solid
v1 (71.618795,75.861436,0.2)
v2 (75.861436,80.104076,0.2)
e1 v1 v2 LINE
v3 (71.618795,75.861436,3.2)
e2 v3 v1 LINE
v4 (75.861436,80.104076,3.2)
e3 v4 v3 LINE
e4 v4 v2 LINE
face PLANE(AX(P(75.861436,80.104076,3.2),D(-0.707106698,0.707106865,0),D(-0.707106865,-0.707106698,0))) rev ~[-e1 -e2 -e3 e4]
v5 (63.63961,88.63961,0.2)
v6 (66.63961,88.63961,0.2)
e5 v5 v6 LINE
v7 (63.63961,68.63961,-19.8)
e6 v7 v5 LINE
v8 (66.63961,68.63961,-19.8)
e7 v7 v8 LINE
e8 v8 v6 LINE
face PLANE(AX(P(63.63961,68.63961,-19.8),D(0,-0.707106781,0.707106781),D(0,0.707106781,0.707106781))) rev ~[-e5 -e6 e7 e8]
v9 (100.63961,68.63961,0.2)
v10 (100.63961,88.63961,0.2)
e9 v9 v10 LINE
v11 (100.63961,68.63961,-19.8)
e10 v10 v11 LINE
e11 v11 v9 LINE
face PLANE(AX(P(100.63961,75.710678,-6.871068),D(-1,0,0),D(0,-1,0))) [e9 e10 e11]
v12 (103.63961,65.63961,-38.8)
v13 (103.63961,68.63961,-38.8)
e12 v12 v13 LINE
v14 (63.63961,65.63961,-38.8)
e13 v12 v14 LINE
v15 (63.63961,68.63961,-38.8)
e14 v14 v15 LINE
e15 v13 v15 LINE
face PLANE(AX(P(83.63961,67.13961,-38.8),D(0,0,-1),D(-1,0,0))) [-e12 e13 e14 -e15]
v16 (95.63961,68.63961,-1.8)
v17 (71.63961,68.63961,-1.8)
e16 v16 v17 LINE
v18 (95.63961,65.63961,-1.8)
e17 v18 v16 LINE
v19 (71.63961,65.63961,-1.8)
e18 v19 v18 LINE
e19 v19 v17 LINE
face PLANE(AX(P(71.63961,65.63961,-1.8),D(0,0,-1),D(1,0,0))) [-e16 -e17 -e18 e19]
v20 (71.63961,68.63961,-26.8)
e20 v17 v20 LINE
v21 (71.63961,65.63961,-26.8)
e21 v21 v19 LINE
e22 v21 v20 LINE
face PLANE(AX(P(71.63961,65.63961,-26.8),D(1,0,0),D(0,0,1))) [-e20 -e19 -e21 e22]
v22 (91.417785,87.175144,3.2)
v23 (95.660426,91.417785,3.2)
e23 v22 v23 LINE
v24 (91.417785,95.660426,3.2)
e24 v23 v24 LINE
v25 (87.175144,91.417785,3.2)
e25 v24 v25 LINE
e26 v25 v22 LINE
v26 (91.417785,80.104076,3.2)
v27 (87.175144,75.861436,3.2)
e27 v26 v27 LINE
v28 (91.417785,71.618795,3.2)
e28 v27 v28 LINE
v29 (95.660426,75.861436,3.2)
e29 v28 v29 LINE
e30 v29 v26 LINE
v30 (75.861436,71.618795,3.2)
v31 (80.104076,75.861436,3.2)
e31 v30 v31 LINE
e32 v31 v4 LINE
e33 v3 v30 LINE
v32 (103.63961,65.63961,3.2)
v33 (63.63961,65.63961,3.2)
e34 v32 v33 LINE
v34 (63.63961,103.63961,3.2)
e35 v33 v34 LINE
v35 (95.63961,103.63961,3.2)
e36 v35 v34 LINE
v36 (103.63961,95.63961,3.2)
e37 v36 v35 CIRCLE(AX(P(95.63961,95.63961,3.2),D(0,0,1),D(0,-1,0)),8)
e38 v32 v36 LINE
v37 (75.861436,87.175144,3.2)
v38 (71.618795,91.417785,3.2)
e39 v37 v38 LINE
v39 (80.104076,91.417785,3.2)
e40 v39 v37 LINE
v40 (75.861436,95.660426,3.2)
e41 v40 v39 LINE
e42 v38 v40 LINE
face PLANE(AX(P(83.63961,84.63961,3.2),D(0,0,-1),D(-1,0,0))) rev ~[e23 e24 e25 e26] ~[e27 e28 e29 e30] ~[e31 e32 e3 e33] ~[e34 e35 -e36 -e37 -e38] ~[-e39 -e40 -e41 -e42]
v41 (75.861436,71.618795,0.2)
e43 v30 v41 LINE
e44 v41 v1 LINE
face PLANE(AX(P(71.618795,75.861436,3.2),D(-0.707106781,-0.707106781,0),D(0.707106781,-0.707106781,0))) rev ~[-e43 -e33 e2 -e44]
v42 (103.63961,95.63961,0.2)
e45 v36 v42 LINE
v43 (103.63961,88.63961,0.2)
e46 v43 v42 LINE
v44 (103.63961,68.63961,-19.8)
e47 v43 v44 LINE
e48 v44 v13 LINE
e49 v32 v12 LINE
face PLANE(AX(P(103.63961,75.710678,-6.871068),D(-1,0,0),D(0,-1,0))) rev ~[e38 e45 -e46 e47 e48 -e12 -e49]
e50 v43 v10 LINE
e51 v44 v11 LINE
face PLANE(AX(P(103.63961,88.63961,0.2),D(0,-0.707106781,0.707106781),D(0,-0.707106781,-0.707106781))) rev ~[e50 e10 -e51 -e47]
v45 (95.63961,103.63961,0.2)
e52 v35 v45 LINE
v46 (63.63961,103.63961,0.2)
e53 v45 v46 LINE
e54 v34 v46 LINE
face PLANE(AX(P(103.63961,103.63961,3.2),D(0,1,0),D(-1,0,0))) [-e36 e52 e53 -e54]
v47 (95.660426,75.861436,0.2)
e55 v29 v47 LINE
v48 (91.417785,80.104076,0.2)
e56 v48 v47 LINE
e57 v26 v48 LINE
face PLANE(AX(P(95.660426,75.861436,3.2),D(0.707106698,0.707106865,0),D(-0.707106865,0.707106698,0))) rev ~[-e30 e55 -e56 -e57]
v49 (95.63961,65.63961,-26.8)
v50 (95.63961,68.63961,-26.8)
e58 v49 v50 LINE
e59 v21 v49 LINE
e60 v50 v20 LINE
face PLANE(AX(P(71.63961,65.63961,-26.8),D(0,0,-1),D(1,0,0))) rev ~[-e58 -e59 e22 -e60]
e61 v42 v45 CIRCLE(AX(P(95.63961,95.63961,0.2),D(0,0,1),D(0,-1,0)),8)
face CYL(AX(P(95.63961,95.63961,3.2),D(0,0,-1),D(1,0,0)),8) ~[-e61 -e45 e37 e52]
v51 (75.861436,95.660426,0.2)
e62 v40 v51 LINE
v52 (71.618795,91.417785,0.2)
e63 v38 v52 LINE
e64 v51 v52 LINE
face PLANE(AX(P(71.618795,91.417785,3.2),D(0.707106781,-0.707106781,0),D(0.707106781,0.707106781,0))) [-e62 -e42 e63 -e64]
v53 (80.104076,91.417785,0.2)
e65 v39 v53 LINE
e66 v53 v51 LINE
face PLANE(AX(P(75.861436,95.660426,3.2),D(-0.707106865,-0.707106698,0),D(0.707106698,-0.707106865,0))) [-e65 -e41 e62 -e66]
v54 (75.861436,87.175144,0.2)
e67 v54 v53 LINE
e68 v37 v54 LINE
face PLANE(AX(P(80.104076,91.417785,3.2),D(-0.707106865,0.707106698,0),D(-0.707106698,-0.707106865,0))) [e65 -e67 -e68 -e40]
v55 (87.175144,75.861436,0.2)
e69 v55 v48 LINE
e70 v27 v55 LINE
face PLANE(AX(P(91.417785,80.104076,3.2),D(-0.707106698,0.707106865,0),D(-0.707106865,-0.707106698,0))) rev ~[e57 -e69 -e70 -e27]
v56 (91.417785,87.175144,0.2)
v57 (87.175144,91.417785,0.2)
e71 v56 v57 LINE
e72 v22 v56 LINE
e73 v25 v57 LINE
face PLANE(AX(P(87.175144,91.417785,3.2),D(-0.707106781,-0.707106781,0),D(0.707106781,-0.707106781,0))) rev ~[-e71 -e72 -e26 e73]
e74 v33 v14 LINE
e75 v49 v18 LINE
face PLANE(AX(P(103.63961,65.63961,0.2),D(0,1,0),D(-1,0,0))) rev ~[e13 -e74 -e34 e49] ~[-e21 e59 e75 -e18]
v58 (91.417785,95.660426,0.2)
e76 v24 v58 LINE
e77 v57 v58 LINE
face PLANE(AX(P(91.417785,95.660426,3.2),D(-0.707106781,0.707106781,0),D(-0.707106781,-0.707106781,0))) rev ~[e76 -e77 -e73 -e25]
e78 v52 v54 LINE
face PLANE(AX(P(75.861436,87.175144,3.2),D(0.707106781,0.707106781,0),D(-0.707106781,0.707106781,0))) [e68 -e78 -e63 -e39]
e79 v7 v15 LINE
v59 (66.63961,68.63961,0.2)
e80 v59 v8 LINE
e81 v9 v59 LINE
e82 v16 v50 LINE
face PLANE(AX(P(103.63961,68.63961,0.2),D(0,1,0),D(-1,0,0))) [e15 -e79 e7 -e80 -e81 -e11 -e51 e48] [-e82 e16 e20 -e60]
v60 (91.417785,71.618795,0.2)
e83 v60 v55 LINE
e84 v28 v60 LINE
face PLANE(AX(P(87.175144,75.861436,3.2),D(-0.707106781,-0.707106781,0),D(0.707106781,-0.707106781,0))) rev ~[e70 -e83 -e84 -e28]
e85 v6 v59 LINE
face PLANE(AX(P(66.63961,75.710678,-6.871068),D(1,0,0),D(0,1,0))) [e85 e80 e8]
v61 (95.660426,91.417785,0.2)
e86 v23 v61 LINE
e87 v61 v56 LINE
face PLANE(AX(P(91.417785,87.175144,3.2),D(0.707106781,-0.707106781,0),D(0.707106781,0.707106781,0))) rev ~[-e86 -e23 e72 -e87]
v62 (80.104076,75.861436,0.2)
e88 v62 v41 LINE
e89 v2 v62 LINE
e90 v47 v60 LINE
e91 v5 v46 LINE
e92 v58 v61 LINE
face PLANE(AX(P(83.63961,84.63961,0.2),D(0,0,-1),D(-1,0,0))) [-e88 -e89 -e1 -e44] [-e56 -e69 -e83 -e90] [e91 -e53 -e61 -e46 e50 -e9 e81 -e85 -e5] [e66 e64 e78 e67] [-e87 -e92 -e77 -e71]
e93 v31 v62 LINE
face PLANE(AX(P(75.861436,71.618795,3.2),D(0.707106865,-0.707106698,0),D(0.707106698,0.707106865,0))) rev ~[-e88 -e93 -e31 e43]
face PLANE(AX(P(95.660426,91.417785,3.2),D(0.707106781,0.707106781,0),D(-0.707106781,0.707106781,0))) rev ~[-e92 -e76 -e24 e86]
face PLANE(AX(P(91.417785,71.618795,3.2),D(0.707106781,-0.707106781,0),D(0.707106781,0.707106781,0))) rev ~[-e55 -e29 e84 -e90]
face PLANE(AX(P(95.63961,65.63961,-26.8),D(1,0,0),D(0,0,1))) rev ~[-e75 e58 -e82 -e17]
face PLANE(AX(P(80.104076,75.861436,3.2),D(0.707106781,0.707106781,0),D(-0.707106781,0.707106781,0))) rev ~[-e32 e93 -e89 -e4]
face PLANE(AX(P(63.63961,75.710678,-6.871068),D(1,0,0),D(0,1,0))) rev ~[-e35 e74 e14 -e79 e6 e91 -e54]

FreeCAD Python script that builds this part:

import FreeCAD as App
import Part
import Sketcher
from FreeCAD import Vector
Q = App.Units.Quantity


def edges_at(feature, points):
    """Names of the edges that pass closest to the given points."""
    edges = feature.Shape.Edges
    near = lambda p: min(range(len(edges)), key=lambda i: edges[i].distToShape(Part.Vertex(*p))[0])
    return sorted({f"Edge{near(p) + 1}" for p in points})

doc = App.newDocument("Part")
params = doc.addObject("Spreadsheet::Sheet", "Params")
for row, (alias, value) in enumerate([
    ("sketch1_width", "40 mm"),
    ("sketch1_height", "38 mm"),
    ("pad1_length", "3 mm"),
    ("sketch2_width", "40 mm"),
    ("sketch2_height", "3 mm"),
    ("pad2_length", "39 mm"),
    ("sketch3_diameter", "3 mm"),
    ("sketch3_width", "24 mm"),
    ("sketch3_height", "25 mm"),
    ("pocket1_length", "5 mm"),
    ("sketch4_length", "6 mm"),
    ("pocket2_length", "5 mm"),
    ("sketch5_width", "20 mm"),
    ("pad3_length", "3 mm"),
    ("sketch6_width", "20 mm"),
    ("pad4_length", "3 mm"),
    ("fillet_radius", "8 mm"),
], start=1):
    params.set(f"A{row}", alias)
    params.set(f"B{row}", "=" + value)
    params.setAlias(f"B{row}", alias)

body = doc.addObject("PartDesign::Body", "Body")

sketch1 = body.newObject("Sketcher::SketchObject", "Sketch")
sketch1.AttachmentSupport = (doc.getObject("XY_Plane"), [""])
sketch1.MapMode = "FlatFace"
sketch1.AttachmentOffset = App.Placement(Vector(0, 0, 3.2), App.Rotation())
sketch1.addGeometry([
    Part.LineSegment(Vector(-103.63961, -103.63961, 0), Vector(-103.63961, -65.63961, 0)),
    Part.LineSegment(Vector(-103.63961, -65.63961, 0), Vector(-63.63961, -65.63961, 0)),
    Part.LineSegment(Vector(-63.63961, -65.63961, 0), Vector(-63.63961, -103.63961, 0)),
    Part.LineSegment(Vector(-63.63961, -103.63961, 0), Vector(-103.63961, -103.63961, 0)),
], False)
sketch1.addConstraint([
    Sketcher.Constraint("Coincident", 0, 2, 1, 1),
    Sketcher.Constraint("Coincident", 1, 2, 2, 1),
    Sketcher.Constraint("Coincident", 2, 2, 3, 1),
    Sketcher.Constraint("Coincident", 3, 2, 0, 1),
    Sketcher.Constraint("Vertical", 0),
    Sketcher.Constraint("Horizontal", 1),
    Sketcher.Constraint("Vertical", 2),
    Sketcher.Constraint("Horizontal", 3),
    Sketcher.Constraint("DistanceX", 1, 1, 1, 2, Q("40 mm")),
    Sketcher.Constraint("DistanceY", 0, 1, 0, 2, Q("38 mm")),
    Sketcher.Constraint("DistanceX", 0, 2, -1, 1, Q("103.63961 mm")),
    Sketcher.Constraint("DistanceY", 0, 2, -1, 1, Q("65.63961 mm")),
])
sketch1.setExpression("Constraints[8]", "Params.sketch1_width")
sketch1.setExpression("Constraints[9]", "Params.sketch1_height")
pad1 = body.newObject("PartDesign::Pad", "Pad")
pad1.Profile = sketch1
pad1.setExpression("Length", "Params.pad1_length")
pad1.Reversed = True

sketch2 = body.newObject("Sketcher::SketchObject", "Sketch001")
sketch2.AttachmentSupport = (doc.getObject("XY_Plane"), [""])
sketch2.MapMode = "FlatFace"
sketch2.AttachmentOffset = App.Placement(Vector(0, 0, 0.2), App.Rotation())
sketch2.addGeometry([
    Part.LineSegment(Vector(-103.63961, -68.63961, 0), Vector(-103.63961, -65.63961, 0)),
    Part.LineSegment(Vector(-103.63961, -65.63961, 0), Vector(-63.63961, -65.63961, 0)),
    Part.LineSegment(Vector(-63.63961, -65.63961, 0), Vector(-63.63961, -68.63961, 0)),
    Part.LineSegment(Vector(-63.63961, -68.63961, 0), Vector(-103.63961, -68.63961, 0)),
], False)
sketch2.addConstraint([
    Sketcher.Constraint("Coincident", 0, 2, 1, 1),
    Sketcher.Constraint("Coincident", 1, 2, 2, 1),
    Sketcher.Constraint("Coincident", 2, 2, 3, 1),
    Sketcher.Constraint("Coincident", 3, 2, 0, 1),
    Sketcher.Constraint("Vertical", 0),
    Sketcher.Constraint("Horizontal", 1),
    Sketcher.Constraint("Vertical", 2),
    Sketcher.Constraint("Horizontal", 3),
    Sketcher.Constraint("DistanceX", 1, 1, 1, 2, Q("40 mm")),
    Sketcher.Constraint("DistanceY", 0, 1, 0, 2, Q("3 mm")),
    Sketcher.Constraint("DistanceX", 0, 2, -1, 1, Q("103.63961 mm")),
    Sketcher.Constraint("DistanceY", 0, 2, -1, 1, Q("65.63961 mm")),
])
sketch2.setExpression("Constraints[8]", "Params.sketch2_width")
sketch2.setExpression("Constraints[9]", "Params.sketch2_height")
pad2 = body.newObject("PartDesign::Pad", "Pad001")
pad2.Profile = sketch2
pad2.setExpression("Length", "Params.pad2_length")
pad2.Reversed = True

sketch3 = body.newObject("Sketcher::SketchObject", "Sketch002")
sketch3.AttachmentSupport = (doc.getObject("XZ_Plane"), [""])
sketch3.MapMode = "FlatFace"
sketch3.AttachmentOffset = App.Placement(Vector(0, 0, 65.63961), App.Rotation())
sketch3.addGeometry([
    Part.Circle(Vector(92.512799, -33.212713, 0), Vector(0, 0, 1), 1.5),
    Part.Circle(Vector(73.103896, -33.2, 0), Vector(0, 0, 1), 1.5),
    Part.LineSegment(Vector(-71.63961, -1.8, 0), Vector(-71.63961, -26.8, 0)),
    Part.LineSegment(Vector(-71.63961, -26.8, 0), Vector(-95.63961, -26.8, 0)),
    Part.LineSegment(Vector(-95.63961, -26.8, 0), Vector(-95.63961, -1.8, 0)),
    Part.LineSegment(Vector(-95.63961, -1.8, 0), Vector(-71.63961, -1.8, 0)),
], False)
sketch3.addConstraint([
    Sketcher.Constraint("Coincident", 2, 2, 3, 1),
    Sketcher.Constraint("Coincident", 3, 2, 4, 1),
    Sketcher.Constraint("Coincident", 4, 2, 5, 1),
    Sketcher.Constraint("Coincident", 5, 2, 2, 1),
    Sketcher.Constraint("Vertical", 2),
    Sketcher.Constraint("Horizontal", 3),
    Sketcher.Constraint("Vertical", 4),
    Sketcher.Constraint("Horizontal", 5),
    Sketcher.Constraint("Equal", 0, 1),
    Sketcher.Constraint("Diameter", 0, Q("3 mm")),
    Sketcher.Constraint("DistanceX", 3, 2, 3, 1, Q("24 mm")),
    Sketcher.Constraint("DistanceY", 2, 2, 2, 1, Q("25 mm")),
    Sketcher.Constraint("DistanceY", 1, 3, -1, 1, Q("33.2 mm")),
    Sketcher.Constraint("DistanceY", 2, 2, -1, 1, Q("26.8 mm")),
    Sketcher.Constraint("DistanceX", -1, 1, 0, 3, Q("92.512799 mm")),
    Sketcher.Constraint("DistanceX", 2, 2, -1, 1, Q("71.63961 mm")),
    Sketcher.Constraint("DistanceY", 0, 3, -1, 1, Q("33.212713 mm")),
    Sketcher.Constraint("DistanceX", -1, 1, 1, 3, Q("73.103896 mm")),
])
sketch3.setExpression("Constraints[9]", "Params.sketch3_diameter")
sketch3.setExpression("Constraints[10]", "Params.sketch3_width")
sketch3.setExpression("Constraints[11]", "Params.sketch3_height")
pocket1 = body.newObject("PartDesign::Pocket", "Pocket")
pocket1.Profile = sketch3
pocket1.setExpression("Length", "Params.pocket1_length")
pocket1.Reversed = True

sketch4 = body.newObject("Sketcher::SketchObject", "Sketch003")
sketch4.AttachmentSupport = (doc.getObject("XY_Plane"), [""])
sketch4.MapMode = "FlatFace"
sketch4.AttachmentOffset = App.Placement(Vector(0, 0, 3.2), App.Rotation())
sketch4.addGeometry([
    Part.LineSegment(Vector(-91.417785, -87.175144, 0), Vector(-95.660426, -91.417785, 0)),
    Part.LineSegment(Vector(-95.660426, -91.417785, 0), Vector(-91.417785, -95.660426, 0)),
    Part.LineSegment(Vector(-91.417785, -95.660426, 0), Vector(-87.175144, -91.417785, 0)),
    Part.LineSegment(Vector(-87.175144, -91.417785, 0), Vector(-91.417785, -87.175144, 0)),
    Part.LineSegment(Vector(-75.861436, -87.175144, 0), Vector(-80.104076, -91.417785, 0)),
    Part.LineSegment(Vector(-80.104076, -91.417785, 0), Vector(-75.861436, -95.660426, 0)),
    Part.LineSegment(Vector(-75.861436, -95.660426, 0), Vector(-71.618795, -91.417785, 0)),
    Part.LineSegment(Vector(-71.618795, -91.417785, 0), Vector(-75.861436, -87.175144, 0)),
    Part.LineSegment(Vector(-91.417785, -80.104076, 0), Vector(-87.175144, -75.861436, 0)),
    Part.LineSegment(Vector(-87.175144, -75.861436, 0), Vector(-91.417785, -71.618795, 0)),
    Part.LineSegment(Vector(-91.417785, -71.618795, 0), Vector(-95.660426, -75.861436, 0)),
    Part.LineSegment(Vector(-95.660426, -75.861436, 0), Vector(-91.417785, -80.104076, 0)),
    Part.LineSegment(Vector(-80.104076, -75.861436, 0), Vector(-75.861436, -80.104076, 0)),
    Part.LineSegment(Vector(-75.861436, -80.104076, 0), Vector(-71.618795, -75.861436, 0)),
    Part.LineSegment(Vector(-71.618795, -75.861436, 0), Vector(-75.861436, -71.618795, 0)),
    Part.LineSegment(Vector(-75.861436, -71.618795, 0), Vector(-80.104076, -75.861436, 0)),
], False)
sketch4.addConstraint([
    Sketcher.Constraint("Coincident", 0, 2, 1, 1),
    Sketcher.Constraint("Coincident", 1, 2, 2, 1),
    Sketcher.Constraint("Coincident", 2, 2, 3, 1),
    Sketcher.Constraint("Coincident", 3, 2, 0, 1),
    Sketcher.Constraint("Coincident", 4, 2, 5, 1),
    Sketcher.Constraint("Coincident", 5, 2, 6, 1),
    Sketcher.Constraint("Coincident", 6, 2, 7, 1),
    Sketcher.Constraint("Coincident", 7, 2, 4, 1),
    Sketcher.Constraint("Coincident", 8, 2, 9, 1),
    Sketcher.Constraint("Coincident", 9, 2, 10, 1),
    Sketcher.Constraint("Coincident", 10, 2, 11, 1),
    Sketcher.Constraint("Coincident", 11, 2, 8, 1),
    Sketcher.Constraint("Coincident", 12, 2, 13, 1),
    Sketcher.Constraint("Coincident", 13, 2, 14, 1),
    Sketcher.Constraint("Coincident", 14, 2, 15, 1),
    Sketcher.Constraint("Coincident", 15, 2, 12, 1),
    Sketcher.Constraint("Perpendicular", 0, 1),
    Sketcher.Constraint("Perpendicular", 1, 2),
    Sketcher.Constraint("Perpendicular", 2, 3),
    Sketcher.Constraint("Perpendicular", 3, 4),
    Sketcher.Constraint("Perpendicular", 4, 5),
    Sketcher.Constraint("Perpendicular", 5, 6),
    Sketcher.Constraint("Perpendicular", 6, 7),
    Sketcher.Constraint("Perpendicular", 7, 8),
    Sketcher.Constraint("Perpendicular", 8, 9),
    Sketcher.Constraint("Perpendicular", 9, 10),
    Sketcher.Constraint("Perpendicular", 10, 11),
    Sketcher.Constraint("Parallel", 11, 12),
    Sketcher.Constraint("Perpendicular", 12, 13),
    Sketcher.Constraint("Perpendicular", 13, 14),
    Sketcher.Constraint("Perpendicular", 14, 15),
    Sketcher.Constraint("Horizontal", 0, 2, 2, 2),
    Sketcher.Constraint("Horizontal", 2, 2, 4, 2),
    Sketcher.Constraint("Horizontal", 1, 2, 5, 2),
    Sketcher.Constraint("Horizontal", 4, 2, 6, 2),
    Sketcher.Constraint("Horizontal", 8, 2, 10, 2),
    Sketcher.Constraint("Horizontal", 11, 2, 12, 2),
    Sketcher.Constraint("Horizontal", 10, 2, 13, 2),
    Sketcher.Constraint("Horizontal", 9, 2, 14, 2),
    Sketcher.Constraint("Vertical", 1, 2, 3, 2),
    Sketcher.Constraint("Vertical", 2, 2, 8, 2),
    Sketcher.Constraint("Vertical", 3, 2, 9, 2),
    Sketcher.Constraint("Vertical", 7, 2, 12, 2),
    Sketcher.Constraint("Distance", 0, Q("6 mm")),
    Sketcher.Constraint("DistanceX", 3, 2, 4, 2, Q("11.313709 mm")),
    Sketcher.Constraint("DistanceY", 3, 2, 8, 2, Q("11.313708 mm")),
    Sketcher.Constraint("DistanceX", 0, 2, -1, 1, Q("95.660426 mm")),
    Sketcher.Constraint("DistanceY", 0, 2, -1, 1, Q("91.417785 mm")),
])
sketch4.setExpression("Constraints[43]", "Params.sketch4_length")
pocket2 = body.newObject("PartDesign::Pocket", "Pocket001")
pocket2.Profile = sketch4
pocket2.setExpression("Length", "Params.pocket2_length")

sketch5 = body.newObject("Sketcher::SketchObject", "Sketch004")
sketch5.AttachmentSupport = (doc.getObject("YZ_Plane"), [""])
sketch5.MapMode = "FlatFace"
sketch5.AttachmentOffset = App.Placement(Vector(0, 0, -103.63961), App.Rotation())
sketch5.addGeometry([
    Part.LineSegment(Vector(-68.63961, -19.8, 0), Vector(-88.63961, 0.2, 0)),
    Part.LineSegment(Vector(-88.63961, 0.2, 0), Vector(-68.63961, 0.2, 0)),
    Part.LineSegment(Vector(-68.63961, 0.2, 0), Vector(-68.63961, -19.8, 0)),
], False)
sketch5.addConstraint([
    Sketcher.Constraint("Coincident", 0, 2, 1, 1),
    Sketcher.Constraint("Coincident", 1, 2, 2, 1),
    Sketcher.Constraint("Coincident", 2, 2, 0, 1),
    Sketcher.Constraint("Horizontal", 1),
    Sketcher.Constraint("Vertical", 2),
    Sketcher.Constraint("Equal", 1, 2),
    Sketcher.Constraint("DistanceX", 1, 1, 1, 2, Q("20 mm")),
    Sketcher.Constraint("DistanceY", -1, 1, 0, 2, Q("0.2 mm")),
    Sketcher.Constraint("DistanceX", 0, 2, -1, 1, Q("88.63961 mm")),
])
sketch5.setExpression("Constraints[6]", "Params.sketch5_width")
pad3 = body.newObject("PartDesign::Pad", "Pad002")
pad3.Profile = sketch5
pad3.setExpression("Length", "Params.pad3_length")

sketch6 = body.newObject("Sketcher::SketchObject", "Sketch005")
sketch6.AttachmentSupport = (doc.getObject("YZ_Plane"), [""])
sketch6.MapMode = "FlatFace"
sketch6.AttachmentOffset = App.Placement(Vector(0, 0, -63.63961), App.Rotation())
sketch6.addGeometry([
    Part.LineSegment(Vector(-68.63961, 0.2, 0), Vector(-88.63961, 0.2, 0)),
    Part.LineSegment(Vector(-88.63961, 0.2, 0), Vector(-68.63961, -19.8, 0)),
    Part.LineSegment(Vector(-68.63961, -19.8, 0), Vector(-68.63961, 0.2, 0)),
], False)
sketch6.addConstraint([
    Sketcher.Constraint("Coincident", 0, 2, 1, 1),
    Sketcher.Constraint("Coincident", 1, 2, 2, 1),
    Sketcher.Constraint("Coincident", 2, 2, 0, 1),
    Sketcher.Constraint("Horizontal", 0),
    Sketcher.Constraint("Vertical", 2),
    Sketcher.Constraint("Equal", 0, 2),
    Sketcher.Constraint("DistanceX", 0, 2, 0, 1, Q("20 mm")),
    Sketcher.Constraint("DistanceY", -1, 1, 0, 2, Q("0.2 mm")),
    Sketcher.Constraint("DistanceX", 0, 2, -1, 1, Q("88.63961 mm")),
])
sketch6.setExpression("Constraints[6]", "Params.sketch6_width")
pad4 = body.newObject("PartDesign::Pad", "Pad003")
pad4.Profile = sketch6
pad4.setExpression("Length", "Params.pad4_length")
pad4.Reversed = True
doc.recompute()

fillet = body.newObject("PartDesign::Fillet", "Fillet")
fillet.Base = (pad4, edges_at(pad4, [(-103.64, -103.64, 1.7)]))
fillet.setExpression("Radius", "Params.fillet_radius")
body2 = doc.addObject("PartDesign::Body", "Body001")
doc.recompute()

body.Placement = App.Placement(Vector(0, 0, 0), App.Rotation(Vector(0, 0, 1), 180))
boolean = body2.newObject("PartDesign::Boolean", "Boolean")
boolean.Type = "Fuse"
boolean.addObjects([body])

doc.recompute()
